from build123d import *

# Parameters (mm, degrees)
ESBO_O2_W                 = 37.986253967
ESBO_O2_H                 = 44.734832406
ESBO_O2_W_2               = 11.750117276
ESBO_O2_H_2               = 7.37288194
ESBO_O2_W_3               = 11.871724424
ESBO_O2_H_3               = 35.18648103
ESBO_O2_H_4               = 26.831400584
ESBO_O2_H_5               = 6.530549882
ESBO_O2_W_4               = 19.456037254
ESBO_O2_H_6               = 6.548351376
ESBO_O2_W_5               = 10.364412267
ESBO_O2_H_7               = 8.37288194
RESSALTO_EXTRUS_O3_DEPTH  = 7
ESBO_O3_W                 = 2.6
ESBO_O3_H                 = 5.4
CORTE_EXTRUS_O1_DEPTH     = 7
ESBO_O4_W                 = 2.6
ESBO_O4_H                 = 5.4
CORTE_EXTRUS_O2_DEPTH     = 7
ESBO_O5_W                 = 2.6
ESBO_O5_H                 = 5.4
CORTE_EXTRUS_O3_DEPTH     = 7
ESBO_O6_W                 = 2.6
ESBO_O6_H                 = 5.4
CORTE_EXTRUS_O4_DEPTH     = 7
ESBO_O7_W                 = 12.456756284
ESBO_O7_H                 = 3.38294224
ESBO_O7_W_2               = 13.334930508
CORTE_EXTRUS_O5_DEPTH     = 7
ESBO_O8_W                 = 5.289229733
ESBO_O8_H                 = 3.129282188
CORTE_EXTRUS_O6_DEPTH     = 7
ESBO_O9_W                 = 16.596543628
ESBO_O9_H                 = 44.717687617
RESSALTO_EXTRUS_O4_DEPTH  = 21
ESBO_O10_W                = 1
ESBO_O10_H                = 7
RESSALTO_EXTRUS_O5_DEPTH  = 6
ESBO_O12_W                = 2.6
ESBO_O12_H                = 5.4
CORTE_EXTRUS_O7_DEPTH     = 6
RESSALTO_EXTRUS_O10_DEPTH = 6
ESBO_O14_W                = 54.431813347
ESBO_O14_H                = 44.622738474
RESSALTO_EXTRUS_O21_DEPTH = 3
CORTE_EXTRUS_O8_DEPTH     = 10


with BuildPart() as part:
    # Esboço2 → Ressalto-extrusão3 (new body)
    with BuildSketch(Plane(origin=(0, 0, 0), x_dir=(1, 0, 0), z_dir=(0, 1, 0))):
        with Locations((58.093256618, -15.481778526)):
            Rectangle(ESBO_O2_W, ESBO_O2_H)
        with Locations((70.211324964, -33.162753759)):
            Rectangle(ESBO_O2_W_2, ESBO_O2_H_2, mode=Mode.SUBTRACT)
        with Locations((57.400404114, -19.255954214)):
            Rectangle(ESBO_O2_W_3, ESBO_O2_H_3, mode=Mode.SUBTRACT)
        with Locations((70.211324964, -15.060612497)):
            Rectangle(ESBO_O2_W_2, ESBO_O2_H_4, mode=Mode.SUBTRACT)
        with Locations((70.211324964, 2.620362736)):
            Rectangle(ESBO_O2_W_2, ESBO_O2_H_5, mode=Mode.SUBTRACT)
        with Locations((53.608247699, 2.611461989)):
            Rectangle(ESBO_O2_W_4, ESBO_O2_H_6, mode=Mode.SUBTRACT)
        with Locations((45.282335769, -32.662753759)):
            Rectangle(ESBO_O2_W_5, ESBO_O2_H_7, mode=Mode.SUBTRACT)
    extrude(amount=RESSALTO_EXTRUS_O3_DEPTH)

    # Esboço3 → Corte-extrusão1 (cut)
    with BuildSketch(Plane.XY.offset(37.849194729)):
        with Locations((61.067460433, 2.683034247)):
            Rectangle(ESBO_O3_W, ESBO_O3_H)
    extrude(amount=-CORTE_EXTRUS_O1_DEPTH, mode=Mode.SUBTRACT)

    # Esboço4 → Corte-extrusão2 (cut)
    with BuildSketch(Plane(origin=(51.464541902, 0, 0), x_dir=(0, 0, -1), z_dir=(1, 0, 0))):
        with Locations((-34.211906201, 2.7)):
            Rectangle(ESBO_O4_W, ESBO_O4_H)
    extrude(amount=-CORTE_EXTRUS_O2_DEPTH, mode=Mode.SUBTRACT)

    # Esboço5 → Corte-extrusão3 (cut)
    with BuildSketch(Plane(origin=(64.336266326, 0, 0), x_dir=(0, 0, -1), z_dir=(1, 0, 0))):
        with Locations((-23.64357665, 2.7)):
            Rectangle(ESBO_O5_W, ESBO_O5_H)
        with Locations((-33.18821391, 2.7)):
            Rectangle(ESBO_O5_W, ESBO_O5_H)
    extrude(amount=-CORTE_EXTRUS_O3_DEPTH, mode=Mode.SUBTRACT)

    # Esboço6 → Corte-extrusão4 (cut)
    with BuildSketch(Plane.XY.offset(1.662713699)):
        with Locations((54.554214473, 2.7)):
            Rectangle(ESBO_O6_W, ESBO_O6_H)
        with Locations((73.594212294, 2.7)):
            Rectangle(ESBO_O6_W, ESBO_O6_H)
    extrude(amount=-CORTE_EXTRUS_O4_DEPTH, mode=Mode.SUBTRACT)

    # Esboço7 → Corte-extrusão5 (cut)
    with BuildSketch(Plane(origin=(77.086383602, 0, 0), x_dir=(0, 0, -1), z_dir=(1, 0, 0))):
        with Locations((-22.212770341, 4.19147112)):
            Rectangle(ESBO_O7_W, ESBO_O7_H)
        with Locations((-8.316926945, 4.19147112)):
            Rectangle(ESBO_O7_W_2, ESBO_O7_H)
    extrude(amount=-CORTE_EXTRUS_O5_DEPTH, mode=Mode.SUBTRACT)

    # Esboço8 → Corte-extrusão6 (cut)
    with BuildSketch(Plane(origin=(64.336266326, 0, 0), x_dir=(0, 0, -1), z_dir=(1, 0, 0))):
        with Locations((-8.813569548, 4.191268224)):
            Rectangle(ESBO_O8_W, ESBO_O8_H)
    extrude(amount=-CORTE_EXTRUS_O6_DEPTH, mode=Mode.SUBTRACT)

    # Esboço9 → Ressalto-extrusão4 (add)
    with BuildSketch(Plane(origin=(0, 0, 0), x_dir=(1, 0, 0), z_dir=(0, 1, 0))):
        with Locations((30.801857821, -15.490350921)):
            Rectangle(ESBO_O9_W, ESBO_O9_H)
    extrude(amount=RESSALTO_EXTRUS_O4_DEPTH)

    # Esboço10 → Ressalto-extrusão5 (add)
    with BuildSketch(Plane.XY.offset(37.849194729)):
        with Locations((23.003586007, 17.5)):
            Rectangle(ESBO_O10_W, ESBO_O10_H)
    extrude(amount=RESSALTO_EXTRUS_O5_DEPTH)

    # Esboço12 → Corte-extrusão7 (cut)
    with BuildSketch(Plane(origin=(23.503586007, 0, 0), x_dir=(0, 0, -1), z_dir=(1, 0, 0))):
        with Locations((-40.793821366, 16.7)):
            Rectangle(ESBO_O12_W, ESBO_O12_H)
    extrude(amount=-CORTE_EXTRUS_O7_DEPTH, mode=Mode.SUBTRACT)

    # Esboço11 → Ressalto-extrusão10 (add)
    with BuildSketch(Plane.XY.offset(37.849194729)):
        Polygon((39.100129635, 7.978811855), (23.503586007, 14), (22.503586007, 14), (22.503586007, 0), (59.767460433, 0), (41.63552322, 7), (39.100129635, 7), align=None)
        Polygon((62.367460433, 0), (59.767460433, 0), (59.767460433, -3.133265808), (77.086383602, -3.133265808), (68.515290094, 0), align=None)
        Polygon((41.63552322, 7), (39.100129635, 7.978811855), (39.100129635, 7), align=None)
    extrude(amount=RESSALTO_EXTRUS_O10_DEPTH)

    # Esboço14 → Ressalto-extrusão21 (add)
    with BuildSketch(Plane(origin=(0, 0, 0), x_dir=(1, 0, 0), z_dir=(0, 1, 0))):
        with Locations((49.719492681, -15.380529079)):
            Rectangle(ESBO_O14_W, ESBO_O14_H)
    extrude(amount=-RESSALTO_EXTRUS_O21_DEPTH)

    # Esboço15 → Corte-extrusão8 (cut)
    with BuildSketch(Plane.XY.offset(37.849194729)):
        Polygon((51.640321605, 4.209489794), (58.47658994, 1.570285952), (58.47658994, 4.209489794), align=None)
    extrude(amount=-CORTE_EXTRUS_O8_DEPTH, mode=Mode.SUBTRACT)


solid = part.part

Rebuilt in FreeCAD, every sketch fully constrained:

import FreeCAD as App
import Part
import Sketcher

V = App.Vector
Q = App.Units.Quantity


def add_polygon(sketch, points):
    """Adds a closed chain of lines whose ends are joined by coincident constraints."""
    first, n = sketch.GeometryCount, len(points)
    for a, b in zip(points, points[1:] + points[:1]):
        sketch.addGeometry(Part.LineSegment(App.Vector(*a, 0), App.Vector(*b, 0)), False)
    for i in range(n):
        sketch.addConstraint(Sketcher.Constraint("Coincident", first + i, 2, first + (i + 1) % n, 1))

doc = App.newDocument("Part")
body = doc.addObject("PartDesign::Body", "Body")
body.AllowCompound = True

# Sketch on XZ plane
sketch1 = body.newObject("Sketcher::SketchObject", "Sketch")
sketch1.AttachmentSupport = (doc.getObject("XZ_Plane"), [""])
sketch1.MapMode = "FlatFace"
add_polygon(sketch1, [(39, -7), (39, 38), (77, 38), (77, -7)])  # lines 0-3
add_polygon(sketch1, [(50, 37), (40, 37), (40, 28), (50, 28)])  # lines 4-7
add_polygon(sketch1, [(63, 37), (51, 37), (51, 2), (63, 2)])  # lines 8-11
add_polygon(sketch1, [(76, 37), (64, 37), (64, 29), (76, 29)])  # lines 12-15
add_polygon(sketch1, [(63, 1), (44, 1), (44, -6), (63, -6)])  # lines 16-19
add_polygon(sketch1, [(76, 28), (64, 28), (64, 2), (76, 2)])  # lines 20-23
add_polygon(sketch1, [(76, 1), (64, 1), (64, -6), (76, -6)])  # lines 24-27
sketch1.addConstraint(Sketcher.Constraint("Vertical", 0))
sketch1.addConstraint(Sketcher.Constraint("Horizontal", 1))
sketch1.addConstraint(Sketcher.Constraint("Vertical", 2))
sketch1.addConstraint(Sketcher.Constraint("Horizontal", 3))
sketch1.addConstraint(Sketcher.Constraint("Horizontal", 4))
sketch1.addConstraint(Sketcher.Constraint("Vertical", 5))
sketch1.addConstraint(Sketcher.Constraint("Horizontal", 6))
sketch1.addConstraint(Sketcher.Constraint("Vertical", 7))
sketch1.addConstraint(Sketcher.Constraint("Horizontal", 8))
sketch1.addConstraint(Sketcher.Constraint("Vertical", 9))
sketch1.addConstraint(Sketcher.Constraint("Horizontal", 10))
sketch1.addConstraint(Sketcher.Constraint("Vertical", 11))
sketch1.addConstraint(Sketcher.Constraint("Horizontal", 12))
sketch1.addConstraint(Sketcher.Constraint("Vertical", 13))
sketch1.addConstraint(Sketcher.Constraint("Horizontal", 14))
sketch1.addConstraint(Sketcher.Constraint("Vertical", 15))
sketch1.addConstraint(Sketcher.Constraint("Horizontal", 16))
sketch1.addConstraint(Sketcher.Constraint("Vertical", 17))
sketch1.addConstraint(Sketcher.Constraint("Horizontal", 18))
sketch1.addConstraint(Sketcher.Constraint("Vertical", 19))
sketch1.addConstraint(Sketcher.Constraint("Horizontal", 20))
sketch1.addConstraint(Sketcher.Constraint("Vertical", 21))
sketch1.addConstraint(Sketcher.Constraint("Horizontal", 22))
sketch1.addConstraint(Sketcher.Constraint("Vertical", 23))
sketch1.addConstraint(Sketcher.Constraint("Horizontal", 24))
sketch1.addConstraint(Sketcher.Constraint("Vertical", 25))
sketch1.addConstraint(Sketcher.Constraint("Horizontal", 26))
sketch1.addConstraint(Sketcher.Constraint("Vertical", 27))
sketch1.addConstraint(Sketcher.Constraint("Horizontal", 7, 2, 8, 2))
sketch1.addConstraint(Sketcher.Constraint("Horizontal", 11, 2, 12, 2))
sketch1.addConstraint(Sketcher.Constraint("Horizontal", 6, 2, 20, 2))
sketch1.addConstraint(Sketcher.Constraint("Horizontal", 18, 2, 25, 2))
sketch1.addConstraint(Sketcher.Constraint("Vertical", 11, 2, 18, 2))
sketch1.addConstraint(Sketcher.Constraint("Vertical", 13, 2, 20, 2))
sketch1.addConstraint(Sketcher.Constraint("Vertical", 15, 2, 22, 2))
sketch1.addConstraint(Sketcher.Constraint("Vertical", 21, 2, 24, 2))
sketch1.addConstraint(Sketcher.Constraint("Vertical", 23, 2, 26, 2))
sketch1.addConstraint(Sketcher.Constraint("DistanceX", 0, 2, 4, 2, Q("1 mm")))
sketch1.addConstraint(Sketcher.Constraint("DistanceY", 4, 2, 0, 2, Q("1 mm")))
sketch1.addConstraint(Sketcher.Constraint("DistanceX", 7, 2, 8, 2, Q("1 mm")))
sketch1.addConstraint(Sketcher.Constraint("DistanceX", 11, 2, 12, 2, Q("1 mm")))
sketch1.addConstraint(Sketcher.Constraint("DistanceY", 6, 2, 13, 2, Q("1 mm")))
sketch1.addConstraint(Sketcher.Constraint("DistanceX", 14, 2, 1, 2, Q("1 mm")))
sketch1.addConstraint(Sketcher.Constraint("DistanceY", 16, 2, 9, 2, Q("1 mm")))
sketch1.addConstraint(Sketcher.Constraint("DistanceY", 3, 2, 17, 2, Q("1 mm")))
sketch1.addConstraint(Sketcher.Constraint("DistanceY", 24, 2, 21, 2, Q("1 mm")))
sketch1.addConstraint(Sketcher.Constraint("DistanceY", 21, 2, 21, 1, Q("26.831401 mm")))
sketch1.addConstraint(Sketcher.Constraint("DistanceY", 5, 2, 5, 1, Q("8.372882 mm")))
sketch1.addConstraint(Sketcher.Constraint("DistanceY", 9, 2, 9, 1, Q("35.186481 mm")))
sketch1.addConstraint(Sketcher.Constraint("DistanceY", 17, 2, 17, 1, Q("6.548351 mm")))
sketch1.addConstraint(Sketcher.Constraint("DistanceX", 3, 2, 16, 2, Q("4.780099 mm")))
sketch1.addConstraint(Sketcher.Constraint("DistanceX", 1, 1, 1, 2, Q("37.986254 mm")))
sketch1.addConstraint(Sketcher.Constraint("DistanceX", 4, 2, 4, 1, Q("10.364412 mm")))
sketch1.addConstraint(Sketcher.Constraint("DistanceX", 8, 2, 8, 1, Q("11.871724 mm")))
sketch1.addConstraint(Sketcher.Constraint("DistanceX", -1, 1, 0, 2, Q("39.10013 mm")))
sketch1.addConstraint(Sketcher.Constraint("DistanceY", -1, 1, 0, 2, Q("37.849195 mm")))
pad1 = body.newObject("PartDesign::Pad", "Pad")
pad1.Profile = sketch1
pad1.Length = 7
pad1.Reversed = True

# Sketch on XY plane
sketch2 = body.newObject("Sketcher::SketchObject", "Sketch001")
sketch2.AttachmentSupport = (doc.getObject("XY_Plane"), [""])
sketch2.MapMode = "FlatFace"
sketch2.AttachmentOffset = App.Placement(V(0, 0, 37.849195), App.Rotation())
add_polygon(sketch2, [(59.8, 5.4), (59.8, 0), (62.4, 0), (62.4, 5.4)])  # lines 0-3
sketch2.addConstraint(Sketcher.Constraint("Vertical", 0))
sketch2.addConstraint(Sketcher.Constraint("Horizontal", 1))
sketch2.addConstraint(Sketcher.Constraint("Vertical", 2))
sketch2.addConstraint(Sketcher.Constraint("Horizontal", 3))
sketch2.addConstraint(Sketcher.Constraint("DistanceX", 1, 1, 1, 2, Q("2.6 mm")))
sketch2.addConstraint(Sketcher.Constraint("DistanceY", 0, 2, 0, 1, Q("5.4 mm")))
sketch2.addConstraint(Sketcher.Constraint("DistanceX", -1, 1, 0, 2, Q("59.76746 mm")))
sketch2.addConstraint(Sketcher.Constraint("DistanceY", 0, 2, -1, 1, Q("0.016966 mm")))
pocket1 = body.newObject("PartDesign::Pocket", "Pocket")
pocket1.Profile = sketch2
pocket1.Length = 7

# Sketch on YZ plane
sketch3 = body.newObject("Sketcher::SketchObject", "Sketch002")
sketch3.AttachmentSupport = (doc.getObject("YZ_Plane"), [""])
sketch3.MapMode = "FlatFace"
sketch3.AttachmentOffset = App.Placement(V(0, 0, 51.464542), App.Rotation())
add_polygon(sketch3, [(5.4, 35.5), (0, 35.5), (0, 32.9), (5.4, 32.9)])  # lines 0-3
sketch3.addConstraint(Sketcher.Constraint("Horizontal", 0))
sketch3.addConstraint(Sketcher.Constraint("Vertical", 1))
sketch3.addConstraint(Sketcher.Constraint("Horizontal", 2))
sketch3.addConstraint(Sketcher.Constraint("Vertical", 3))
sketch3.addConstraint(Sketcher.Constraint("PointOnObject", 0, 2, -2))
sketch3.addConstraint(Sketcher.Constraint("DistanceX", 0, 2, 0, 1, Q("5.4 mm")))
sketch3.addConstraint(Sketcher.Constraint("DistanceY", 1, 2, 1, 1, Q("2.6 mm")))
sketch3.addConstraint(Sketcher.Constraint("DistanceY", -1, 1, 0, 2, Q("35.511906 mm")))
pocket2 = body.newObject("PartDesign::Pocket", "Pocket001")
pocket2.Profile = sketch3
pocket2.Length = 7

# Sketch on YZ plane
sketch4 = body.newObject("Sketcher::SketchObject", "Sketch003")
sketch4.AttachmentSupport = (doc.getObject("YZ_Plane"), [""])
sketch4.MapMode = "FlatFace"
sketch4.AttachmentOffset = App.Placement(V(0, 0, 64.336266), App.Rotation())
add_polygon(sketch4, [(5.4, 24.9), (0, 24.9), (0, 22.3), (5.4, 22.3)])  # lines 0-3
add_polygon(sketch4, [(5.4, 34.5), (0, 34.5), (0, 31.9), (5.4, 31.9)])  # lines 4-7
sketch4.addConstraint(Sketcher.Constraint("Horizontal", 0))
sketch4.addConstraint(Sketcher.Constraint("Vertical", 1))
sketch4.addConstraint(Sketcher.Constraint("Horizontal", 2))
sketch4.addConstraint(Sketcher.Constraint("Vertical", 3))
sketch4.addConstraint(Sketcher.Constraint("Horizontal", 4))
sketch4.addConstraint(Sketcher.Constraint("Vertical", 5))
sketch4.addConstraint(Sketcher.Constraint("Horizontal", 6))
sketch4.addConstraint(Sketcher.Constraint("Vertical", 7))
sketch4.addConstraint(Sketcher.Constraint("PointOnObject", 0, 2, -2))
sketch4.addConstraint(Sketcher.Constraint("PointOnObject", 4, 2, -2))
sketch4.addConstraint(Sketcher.Constraint("Vertical", 3, 2, 6, 2))
sketch4.addConstraint(Sketcher.Constraint("Equal", 3, 5))
sketch4.addConstraint(Sketcher.Constraint("DistanceX", 0, 2, 0, 1, Q("5.4 mm")))
sketch4.addConstraint(Sketcher.Constraint("DistanceY", 1, 2, 1, 1, Q("2.6 mm")))
sketch4.addConstraint(Sketcher.Constraint("DistanceY", -1, 1, 0, 2, Q("24.943577 mm")))
sketch4.addConstraint(Sketcher.Constraint("DistanceY", -1, 1, 4, 2, Q("34.488214 mm")))
pocket3 = body.newObject("PartDesign::Pocket", "Pocket002")
pocket3.Profile = sketch4
pocket3.Length = 7

# Sketch on XY plane
sketch5 = body.newObject("Sketcher::SketchObject", "Sketch004")
sketch5.AttachmentSupport = (doc.getObject("XY_Plane"), [""])
sketch5.MapMode = "FlatFace"
sketch5.AttachmentOffset = App.Placement(V(0, 0, 1.662714), App.Rotation())
add_polygon(sketch5, [(53.3, 5.4), (53.3, 0), (55.9, 0), (55.9, 5.4)])  # lines 0-3
add_polygon(sketch5, [(72.3, 5.4), (72.3, 0), (74.9, 0), (74.9, 5.4)])  # lines 4-7
sketch5.addConstraint(Sketcher.Constraint("Vertical", 0))
sketch5.addConstraint(Sketcher.Constraint("Horizontal", 1))
sketch5.addConstraint(Sketcher.Constraint("Vertical", 2))
sketch5.addConstraint(Sketcher.Constraint("Horizontal", 3))
sketch5.addConstraint(Sketcher.Constraint("Vertical", 4))
sketch5.addConstraint(Sketcher.Constraint("Horizontal", 5))
sketch5.addConstraint(Sketcher.Constraint("Vertical", 6))
sketch5.addConstraint(Sketcher.Constraint("Horizontal", 7))
sketch5.addConstraint(Sketcher.Constraint("PointOnObject", 0, 2, -1))
sketch5.addConstraint(Sketcher.Constraint("PointOnObject", 4, 2, -1))
sketch5.addConstraint(Sketcher.Constraint("Horizontal", 3, 2, 6, 2))
sketch5.addConstraint(Sketcher.Constraint("Equal", 3, 5))
sketch5.addConstraint(Sketcher.Constraint("DistanceX", 1, 1, 1, 2, Q("2.6 mm")))
sketch5.addConstraint(Sketcher.Constraint("DistanceY", 0, 2, 0, 1, Q("5.4 mm")))
sketch5.addConstraint(Sketcher.Constraint("DistanceX", -1, 1, 0, 2, Q("53.254214 mm")))
sketch5.addConstraint(Sketcher.Constraint("DistanceX", -1, 1, 4, 2, Q("72.294212 mm")))
pocket4 = body.newObject("PartDesign::Pocket", "Pocket003")
pocket4.Profile = sketch5
pocket4.Length = 7

# Sketch on YZ plane
sketch6 = body.newObject("Sketcher::SketchObject", "Sketch005")
sketch6.AttachmentSupport = (doc.getObject("YZ_Plane"), [""])
sketch6.MapMode = "FlatFace"
sketch6.AttachmentOffset = App.Placement(V(0, 0, 77.086384), App.Rotation())
add_polygon(sketch6, [(5.9, 28.4), (2.5, 28.4), (2.5, 16), (5.9, 16)])  # lines 0-3
add_polygon(sketch6, [(5.9, 15), (2.5, 15), (2.5, 1.6), (5.9, 1.6)])  # lines 4-7
sketch6.addConstraint(Sketcher.Constraint("Horizontal", 0))
sketch6.addConstraint(Sketcher.Constraint("Vertical", 1))
sketch6.addConstraint(Sketcher.Constraint("Horizontal", 2))
sketch6.addConstraint(Sketcher.Constraint("Vertical", 3))
sketch6.addConstraint(Sketcher.Constraint("Horizontal", 4))
sketch6.addConstraint(Sketcher.Constraint("Vertical", 5))
sketch6.addConstraint(Sketcher.Constraint("Horizontal", 6))
sketch6.addConstraint(Sketcher.Constraint("Vertical", 7))
sketch6.addConstraint(Sketcher.Constraint("Vertical", 1, 2, 4, 2))
sketch6.addConstraint(Sketcher.Constraint("Vertical", 3, 2, 6, 2))
sketch6.addConstraint(Sketcher.Constraint("DistanceY", 4, 2, 1, 2, Q("1 mm")))
sketch6.addConstraint(Sketcher.Constraint("DistanceX", -1, 1, 0, 2, Q("2.5 mm")))
sketch6.addConstraint(Sketcher.Constraint("DistanceY", 5, 2, 5, 1, Q("13.334931 mm")))
sketch6.addConstraint(Sketcher.Constraint("DistanceX", 0, 2, 0, 1, Q("3.382942 mm")))
sketch6.addConstraint(Sketcher.Constraint("DistanceY", 1, 2, 1, 1, Q("12.456756 mm")))
sketch6.addConstraint(Sketcher.Constraint("DistanceY", -1, 1, 0, 2, Q("28.441148 mm")))
pocket5 = body.newObject("PartDesign::Pocket", "Pocket004")
pocket5.Profile = sketch6
pocket5.Length = 7

# Sketch on YZ plane
sketch7 = body.newObject("Sketcher::SketchObject", "Sketch006")
sketch7.AttachmentSupport = (doc.getObject("YZ_Plane"), [""])
sketch7.MapMode = "FlatFace"
sketch7.AttachmentOffset = App.Placement(V(0, 0, 64.336266), App.Rotation())
add_polygon(sketch7, [(5.8, 11.5), (2.6, 11.5), (2.6, 6.2), (5.8, 6.2)])  # lines 0-3
sketch7.addConstraint(Sketcher.Constraint("Horizontal", 0))
sketch7.addConstraint(Sketcher.Constraint("Vertical", 1))
sketch7.addConstraint(Sketcher.Constraint("Horizontal", 2))
sketch7.addConstraint(Sketcher.Constraint("Vertical", 3))
sketch7.addConstraint(Sketcher.Constraint("DistanceY", 1, 2, 1, 1, Q("5.28923 mm")))
sketch7.addConstraint(Sketcher.Constraint("DistanceX", 0, 2, 0, 1, Q("3.129282 mm")))
sketch7.addConstraint(Sketcher.Constraint("DistanceX", -1, 1, 2, 2, Q("5.755909 mm")))
sketch7.addConstraint(Sketcher.Constraint("DistanceY", -1, 1, 0, 2, Q("11.458184 mm")))
pocket6 = body.newObject("PartDesign::Pocket", "Pocket005")
pocket6.Profile = sketch7
pocket6.Length = 7

# Sketch on XZ plane
sketch8 = body.newObject("Sketcher::SketchObject", "Sketch007")
sketch8.AttachmentSupport = (doc.getObject("XZ_Plane"), [""])
sketch8.MapMode = "FlatFace"
add_polygon(sketch8, [(23, -7), (23, 38), (39, 38), (39, -7)])  # lines 0-3
sketch8.addConstraint(Sketcher.Constraint("Vertical", 0))
sketch8.addConstraint(Sketcher.Constraint("Horizontal", 1))
sketch8.addConstraint(Sketcher.Constraint("Vertical", 2))
sketch8.addConstraint(Sketcher.Constraint("Horizontal", 3))
sketch8.addConstraint(Sketcher.Constraint("DistanceX", 1, 1, 1, 2, Q("16.596544 mm")))
sketch8.addConstraint(Sketcher.Constraint("DistanceY", 0, 1, 0, 2, Q("44.717688 mm")))
sketch8.addConstraint(Sketcher.Constraint("DistanceX", -1, 1, 1, 2, Q("39.10013 mm")))
sketch8.addConstraint(Sketcher.Constraint("DistanceY", -1, 1, 0, 2, Q("37.849195 mm")))
pad2 = body.newObject("PartDesign::Pad", "Pad001")
pad2.Profile = sketch8
pad2.Length = 21
pad2.Reversed = True

# Sketch on XY plane
sketch9 = body.newObject("Sketcher::SketchObject", "Sketch008")
sketch9.AttachmentSupport = (doc.getObject("XY_Plane"), [""])
sketch9.MapMode = "FlatFace"
sketch9.AttachmentOffset = App.Placement(V(0, 0, 37.849195), App.Rotation())
add_polygon(sketch9, [(22.5, 21), (22.5, 14), (23.5, 14), (23.5, 21)])  # lines 0-3
sketch9.addConstraint(Sketcher.Constraint("Vertical", 0))
sketch9.addConstraint(Sketcher.Constraint("Horizontal", 1))
sketch9.addConstraint(Sketcher.Constraint("Vertical", 2))
sketch9.addConstraint(Sketcher.Constraint("Horizontal", 3))
sketch9.addConstraint(Sketcher.Constraint("DistanceX", 1, 1, 1, 2, Q("1 mm")))
sketch9.addConstraint(Sketcher.Constraint("DistanceY", 0, 2, 0, 1, Q("7 mm")))
sketch9.addConstraint(Sketcher.Constraint("DistanceY", -1, 1, 0, 2, Q("14 mm")))
sketch9.addConstraint(Sketcher.Constraint("DistanceX", -1, 1, 0, 2, Q("22.503586 mm")))
pad3 = body.newObject("PartDesign::Pad", "Pad002")
pad3.Profile = sketch9
pad3.Length = 6

# Sketch on YZ plane
sketch10 = body.newObject("Sketcher::SketchObject", "Sketch009")
sketch10.AttachmentSupport = (doc.getObject("YZ_Plane"), [""])
sketch10.MapMode = "FlatFace"
sketch10.AttachmentOffset = App.Placement(V(0, 0, 23.503586), App.Rotation())
add_polygon(sketch10, [(19.4, 42.1), (14, 42.1), (14, 39.5), (19.4, 39.5)])  # lines 0-3
sketch10.addConstraint(Sketcher.Constraint("Horizontal", 0))
sketch10.addConstraint(Sketcher.Constraint("Vertical", 1))
sketch10.addConstraint(Sketcher.Constraint("Horizontal", 2))
sketch10.addConstraint(Sketcher.Constraint("Vertical", 3))
sketch10.addConstraint(Sketcher.Constraint("DistanceX", 0, 2, 0, 1, Q("5.4 mm")))
sketch10.addConstraint(Sketcher.Constraint("DistanceY", 1, 2, 1, 1, Q("2.6 mm")))
sketch10.addConstraint(Sketcher.Constraint("DistanceX", -1, 1, 0, 2, Q("14 mm")))
sketch10.addConstraint(Sketcher.Constraint("DistanceY", -1, 1, 0, 2, Q("42.093821 mm")))
pocket7 = body.newObject("PartDesign::Pocket", "Pocket006")
pocket7.Profile = sketch10
pocket7.Length = 6

# Sketch on XY plane
sketch11 = body.newObject("Sketcher::SketchObject", "Sketch010")
sketch11.AttachmentSupport = (doc.getObject("XY_Plane"), [""])
sketch11.MapMode = "FlatFace"
sketch11.AttachmentOffset = App.Placement(V(0, 0, 37.849195), App.Rotation())
add_polygon(sketch11, [(39.1, 8), (23.5, 14), (22.5, 14), (22.5, 0), (59.8, 0), (41.6, 7)])  # lines 0-5
add_polygon(sketch11, [(59.8, 0), (59.8, -3.1), (77.1, -3.1), (68.5, 0)])  # lines 6-9
sketch11.addConstraint(Sketcher.Constraint("Horizontal", 1))
sketch11.addConstraint(Sketcher.Constraint("Vertical", 2))
sketch11.addConstraint(Sketcher.Constraint("Horizontal", 3))
sketch11.addConstraint(Sketcher.Constraint("Vertical", 6))
sketch11.addConstraint(Sketcher.Constraint("Horizontal", 7))
sketch11.addConstraint(Sketcher.Constraint("Horizontal", 9))
sketch11.addConstraint(Sketcher.Constraint("Coincident", 9, 2, 3, 2))
sketch11.addConstraint(Sketcher.Constraint("PointOnObject", 2, 2, -1))
sketch11.addConstraint(Sketcher.Constraint("Parallel", 0, 4))
sketch11.addConstraint(Sketcher.Constraint("Parallel", 4, 5))
sketch11.addConstraint(Sketcher.Constraint("DistanceX", 1, 2, 1, 1, Q("1 mm")))
sketch11.addConstraint(Sketcher.Constraint("DistanceY", 2, 2, 2, 1, Q("14 mm")))
sketch11.addConstraint(Sketcher.Constraint("DistanceY", -1, 1, 4, 2, Q("7 mm")))
sketch11.addConstraint(Sketcher.Constraint("DistanceX", 9, 2, 9, 1, Q("8.74783 mm")))
sketch11.addConstraint(Sketcher.Constraint("Distance", 0, Q("16.718459 mm")))
sketch11.addConstraint(Sketcher.Constraint("DistanceX", 3, 1, 3, 2, Q("37.263874 mm")))
sketch11.addConstraint(Sketcher.Constraint("DistanceX", 7, 1, 7, 2, Q("17.318923 mm")))
sketch11.addConstraint(Sketcher.Constraint("DistanceY", 6, 2, 6, 1, Q("3.133266 mm")))
sketch11.addConstraint(Sketcher.Constraint("DistanceX", -1, 1, 3, 2, Q("59.76746 mm")))
pad4 = body.newObject("PartDesign::Pad", "Pad003")
pad4.Profile = sketch11
pad4.Length = 6

# Sketch on XZ plane
sketch12 = body.newObject("Sketcher::SketchObject", "Sketch011")
sketch12.AttachmentSupport = (doc.getObject("XZ_Plane"), [""])
sketch12.MapMode = "FlatFace"
add_polygon(sketch12, [(23, -7), (23, 38), (77, 38), (77, -7)])  # lines 0-3
sketch12.addConstraint(Sketcher.Constraint("Vertical", 0))
sketch12.addConstraint(Sketcher.Constraint("Horizontal", 1))
sketch12.addConstraint(Sketcher.Constraint("Vertical", 2))
sketch12.addConstraint(Sketcher.Constraint("Horizontal", 3))
sketch12.addConstraint(Sketcher.Constraint("DistanceY", 0, 1, 0, 2, Q("44.622738 mm")))
sketch12.addConstraint(Sketcher.Constraint("DistanceY", -1, 1, 0, 2, Q("37.691898 mm")))
sketch12.addConstraint(Sketcher.Constraint("DistanceX", -1, 1, 1, 2, Q("76.935399 mm")))
sketch12.addConstraint(Sketcher.Constraint("DistanceX", 1, 1, 1, 2, Q("54.431813 mm")))
pad5 = body.newObject("PartDesign::Pad", "Pad004")
pad5.Profile = sketch12
pad5.Length = 3

# Sketch on XY plane
sketch13 = body.newObject("Sketcher::SketchObject", "Sketch012")
sketch13.AttachmentSupport = (doc.getObject("XY_Plane"), [""])
sketch13.MapMode = "FlatFace"
sketch13.AttachmentOffset = App.Placement(V(0, 0, 37.849195), App.Rotation())
add_polygon(sketch13, [(51.6, 4.2), (58.5, 1.6), (58.5, 4.2)])  # lines 0-2
sketch13.addConstraint(Sketcher.Constraint("Vertical", 1))
sketch13.addConstraint(Sketcher.Constraint("Horizontal", 2))
sketch13.addConstraint(Sketcher.Constraint("DistanceX", 2, 2, 2, 1, Q("6.836268 mm")))
sketch13.addConstraint(Sketcher.Constraint("DistanceY", 1, 1, 1, 2, Q("2.639204 mm")))
sketch13.addConstraint(Sketcher.Constraint("DistanceX", -1, 1, 0, 2, Q("58.47659 mm")))
sketch13.addConstraint(Sketcher.Constraint("DistanceY", -1, 1, 1, 2, Q("4.20949 mm")))
pocket8 = body.newObject("PartDesign::Pocket", "Pocket007")
pocket8.Profile = sketch13
pocket8.Length = 10

doc.recompute()
